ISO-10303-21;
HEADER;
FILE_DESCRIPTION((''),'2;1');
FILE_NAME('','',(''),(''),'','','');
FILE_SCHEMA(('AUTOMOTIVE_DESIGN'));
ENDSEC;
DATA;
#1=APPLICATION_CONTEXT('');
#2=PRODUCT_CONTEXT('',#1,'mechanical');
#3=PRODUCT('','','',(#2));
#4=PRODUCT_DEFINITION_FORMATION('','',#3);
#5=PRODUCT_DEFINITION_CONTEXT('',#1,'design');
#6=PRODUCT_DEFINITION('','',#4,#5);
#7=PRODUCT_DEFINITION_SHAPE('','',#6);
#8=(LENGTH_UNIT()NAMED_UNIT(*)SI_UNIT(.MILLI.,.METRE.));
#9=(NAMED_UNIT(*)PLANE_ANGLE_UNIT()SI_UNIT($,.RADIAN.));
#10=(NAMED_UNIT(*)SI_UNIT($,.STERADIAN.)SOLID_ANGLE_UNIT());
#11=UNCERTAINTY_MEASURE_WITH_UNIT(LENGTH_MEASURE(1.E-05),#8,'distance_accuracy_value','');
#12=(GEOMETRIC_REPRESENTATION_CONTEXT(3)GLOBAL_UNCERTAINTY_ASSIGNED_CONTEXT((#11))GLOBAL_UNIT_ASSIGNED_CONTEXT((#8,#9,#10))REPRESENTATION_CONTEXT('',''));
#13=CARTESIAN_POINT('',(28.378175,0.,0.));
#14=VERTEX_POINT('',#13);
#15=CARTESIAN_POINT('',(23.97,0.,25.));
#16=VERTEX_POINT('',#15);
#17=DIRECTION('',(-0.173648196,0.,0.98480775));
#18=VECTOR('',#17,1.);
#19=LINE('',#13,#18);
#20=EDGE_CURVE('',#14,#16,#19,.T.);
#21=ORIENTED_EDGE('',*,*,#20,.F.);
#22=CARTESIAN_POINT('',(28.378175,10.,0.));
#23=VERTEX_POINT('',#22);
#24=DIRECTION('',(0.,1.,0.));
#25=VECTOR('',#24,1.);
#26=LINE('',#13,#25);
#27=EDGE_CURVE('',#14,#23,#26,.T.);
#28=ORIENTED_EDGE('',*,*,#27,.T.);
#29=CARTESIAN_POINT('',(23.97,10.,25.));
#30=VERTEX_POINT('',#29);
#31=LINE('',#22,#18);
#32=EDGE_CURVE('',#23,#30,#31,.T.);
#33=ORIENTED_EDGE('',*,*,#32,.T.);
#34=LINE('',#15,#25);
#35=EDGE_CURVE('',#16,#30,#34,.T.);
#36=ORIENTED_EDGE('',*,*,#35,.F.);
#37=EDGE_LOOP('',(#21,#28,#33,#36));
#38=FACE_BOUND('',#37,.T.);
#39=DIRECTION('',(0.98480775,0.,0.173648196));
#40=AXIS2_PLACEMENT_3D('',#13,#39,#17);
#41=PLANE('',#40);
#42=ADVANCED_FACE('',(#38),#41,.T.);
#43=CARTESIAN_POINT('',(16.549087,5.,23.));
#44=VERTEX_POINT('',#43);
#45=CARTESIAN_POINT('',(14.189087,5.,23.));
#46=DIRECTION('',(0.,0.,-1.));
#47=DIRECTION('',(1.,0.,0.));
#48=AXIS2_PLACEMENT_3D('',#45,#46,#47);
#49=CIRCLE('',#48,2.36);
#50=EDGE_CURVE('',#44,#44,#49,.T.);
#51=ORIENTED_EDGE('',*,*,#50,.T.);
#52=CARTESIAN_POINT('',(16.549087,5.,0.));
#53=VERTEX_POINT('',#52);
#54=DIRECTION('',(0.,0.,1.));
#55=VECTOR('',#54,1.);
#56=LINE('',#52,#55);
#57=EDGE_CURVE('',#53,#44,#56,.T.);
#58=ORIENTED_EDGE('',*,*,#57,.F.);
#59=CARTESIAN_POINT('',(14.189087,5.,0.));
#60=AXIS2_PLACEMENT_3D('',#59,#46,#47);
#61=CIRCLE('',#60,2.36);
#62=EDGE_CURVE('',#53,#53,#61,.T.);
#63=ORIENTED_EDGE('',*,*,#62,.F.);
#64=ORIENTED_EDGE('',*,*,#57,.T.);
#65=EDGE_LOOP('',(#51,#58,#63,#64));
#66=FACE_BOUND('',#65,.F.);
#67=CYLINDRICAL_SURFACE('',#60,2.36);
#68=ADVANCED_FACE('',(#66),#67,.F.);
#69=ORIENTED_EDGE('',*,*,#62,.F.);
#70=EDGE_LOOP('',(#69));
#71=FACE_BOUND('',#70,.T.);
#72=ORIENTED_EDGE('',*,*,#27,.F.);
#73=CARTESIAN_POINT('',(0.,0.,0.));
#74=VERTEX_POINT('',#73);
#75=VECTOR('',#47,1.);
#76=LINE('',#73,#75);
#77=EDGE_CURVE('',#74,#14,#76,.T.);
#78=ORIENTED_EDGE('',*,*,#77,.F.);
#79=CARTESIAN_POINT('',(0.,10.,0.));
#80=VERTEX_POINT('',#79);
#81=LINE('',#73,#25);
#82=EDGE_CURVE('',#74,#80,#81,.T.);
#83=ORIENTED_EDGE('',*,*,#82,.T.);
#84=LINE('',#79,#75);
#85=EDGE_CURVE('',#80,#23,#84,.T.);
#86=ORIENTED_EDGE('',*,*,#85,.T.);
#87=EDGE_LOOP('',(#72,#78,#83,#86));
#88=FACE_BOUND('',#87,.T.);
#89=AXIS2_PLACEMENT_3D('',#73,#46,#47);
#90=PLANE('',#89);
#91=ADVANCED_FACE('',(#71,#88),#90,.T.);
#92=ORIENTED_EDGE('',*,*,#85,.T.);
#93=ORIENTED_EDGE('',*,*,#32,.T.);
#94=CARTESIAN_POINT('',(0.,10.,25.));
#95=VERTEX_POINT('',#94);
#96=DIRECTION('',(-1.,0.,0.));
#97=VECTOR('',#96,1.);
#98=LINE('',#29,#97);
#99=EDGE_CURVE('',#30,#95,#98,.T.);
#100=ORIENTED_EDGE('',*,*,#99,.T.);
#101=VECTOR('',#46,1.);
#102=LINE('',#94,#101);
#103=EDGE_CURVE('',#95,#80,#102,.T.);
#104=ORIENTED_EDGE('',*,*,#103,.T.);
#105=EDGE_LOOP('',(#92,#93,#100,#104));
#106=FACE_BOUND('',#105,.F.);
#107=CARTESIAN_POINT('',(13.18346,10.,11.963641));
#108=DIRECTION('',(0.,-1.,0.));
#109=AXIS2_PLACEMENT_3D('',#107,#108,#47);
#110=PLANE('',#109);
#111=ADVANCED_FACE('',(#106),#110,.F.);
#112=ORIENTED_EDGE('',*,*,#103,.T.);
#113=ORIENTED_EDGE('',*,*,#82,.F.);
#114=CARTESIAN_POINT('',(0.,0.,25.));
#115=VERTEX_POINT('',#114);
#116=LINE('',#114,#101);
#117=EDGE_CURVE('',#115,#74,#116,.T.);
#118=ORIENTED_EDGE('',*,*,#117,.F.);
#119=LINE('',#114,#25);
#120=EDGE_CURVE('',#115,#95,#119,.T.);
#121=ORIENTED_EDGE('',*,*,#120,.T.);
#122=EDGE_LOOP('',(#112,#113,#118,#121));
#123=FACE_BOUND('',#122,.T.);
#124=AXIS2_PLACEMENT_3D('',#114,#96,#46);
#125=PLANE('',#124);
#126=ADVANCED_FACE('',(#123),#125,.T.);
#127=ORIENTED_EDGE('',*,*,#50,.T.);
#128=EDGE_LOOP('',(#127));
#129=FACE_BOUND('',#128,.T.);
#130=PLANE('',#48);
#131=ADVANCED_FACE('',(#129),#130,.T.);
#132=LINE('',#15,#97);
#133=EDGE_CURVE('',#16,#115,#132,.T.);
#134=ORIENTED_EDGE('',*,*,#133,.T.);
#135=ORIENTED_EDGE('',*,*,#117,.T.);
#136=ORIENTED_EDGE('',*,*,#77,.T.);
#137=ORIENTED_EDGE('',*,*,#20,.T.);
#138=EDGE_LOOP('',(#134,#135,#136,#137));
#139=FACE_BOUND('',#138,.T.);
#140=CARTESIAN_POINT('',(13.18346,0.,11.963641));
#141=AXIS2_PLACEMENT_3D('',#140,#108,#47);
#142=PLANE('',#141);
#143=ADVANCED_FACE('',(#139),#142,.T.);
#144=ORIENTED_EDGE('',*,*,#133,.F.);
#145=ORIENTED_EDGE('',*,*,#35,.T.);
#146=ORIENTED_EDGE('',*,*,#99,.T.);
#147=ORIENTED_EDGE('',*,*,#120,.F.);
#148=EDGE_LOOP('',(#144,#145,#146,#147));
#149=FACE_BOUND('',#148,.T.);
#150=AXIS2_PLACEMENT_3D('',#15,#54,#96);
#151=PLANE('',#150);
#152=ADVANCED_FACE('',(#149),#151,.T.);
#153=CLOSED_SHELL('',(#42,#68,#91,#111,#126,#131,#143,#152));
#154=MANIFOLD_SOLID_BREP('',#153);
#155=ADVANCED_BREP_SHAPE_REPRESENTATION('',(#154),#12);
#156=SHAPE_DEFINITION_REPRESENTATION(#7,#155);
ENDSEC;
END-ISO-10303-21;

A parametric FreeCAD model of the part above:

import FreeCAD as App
import Part
import Sketcher

V = App.Vector
Q = App.Units.Quantity

doc = App.newDocument("Part")
body = doc.addObject("PartDesign::Body", "Body")

sketch1 = body.newObject("Sketcher::SketchObject", "Sketch")
sketch1.AttachmentSupport = (doc.getObject("XZ_Plane"), [""])
sketch1.MapMode = "FlatFace"
sketch1.addGeometry([
    Part.LineSegment(V(0, 25, 0), V(0, 0, 0)),
    Part.LineSegment(V(0, 0, 0), V(28, 0, 0)),
    Part.LineSegment(V(28, 0, 0), V(24, 25, 0)),
    Part.LineSegment(V(24, 25, 0), V(0, 25, 0)),
], False)
sketch1.addConstraint([
    Sketcher.Constraint("Coincident", 0, 2, 1, 1),
    Sketcher.Constraint("Coincident", 1, 2, 2, 1),
    Sketcher.Constraint("Coincident", 2, 2, 3, 1),
    Sketcher.Constraint("Coincident", 3, 2, 0, 1),
    Sketcher.Constraint("Vertical", 0),
    Sketcher.Constraint("Horizontal", 1),
    Sketcher.Constraint("Horizontal", 3),
    Sketcher.Constraint("Coincident", 0, 2, -1, 1),
    Sketcher.Constraint("DistanceY", 0, 2, 0, 1, 25.0),
    Sketcher.Constraint("Angle", 2, Q("100.000001 deg")),
    Sketcher.Constraint("DistanceX", 3, 2, 3, 1, 23.97),
])
pad1 = body.newObject("PartDesign::Pad", "Pad")
pad1.Profile = sketch1
pad1.Length = 10
pad1.Reversed = True

sketch2 = body.newObject("Sketcher::SketchObject", "Sketch001")
sketch2.AttachmentSupport = (doc.getObject("XY_Plane"), [""])
sketch2.MapMode = "FlatFace"
sketch2.addGeometry(Part.Circle(V(14.2, 5, 0), V(0, 0, 1), 2.4), False)
sketch2.addConstraint([
    Sketcher.Constraint("Diameter", 0, 4.72),
    Sketcher.Constraint("DistanceY", -1, 1, 0, 3, 5.0),
    Sketcher.Constraint("DistanceX", -1, 1, 0, 3, 14.189087),
])
pocket1 = body.newObject("PartDesign::Pocket", "Pocket")
pocket1.Profile = sketch2
pocket1.Length = 23
pocket1.Reversed = True

doc.recompute()
